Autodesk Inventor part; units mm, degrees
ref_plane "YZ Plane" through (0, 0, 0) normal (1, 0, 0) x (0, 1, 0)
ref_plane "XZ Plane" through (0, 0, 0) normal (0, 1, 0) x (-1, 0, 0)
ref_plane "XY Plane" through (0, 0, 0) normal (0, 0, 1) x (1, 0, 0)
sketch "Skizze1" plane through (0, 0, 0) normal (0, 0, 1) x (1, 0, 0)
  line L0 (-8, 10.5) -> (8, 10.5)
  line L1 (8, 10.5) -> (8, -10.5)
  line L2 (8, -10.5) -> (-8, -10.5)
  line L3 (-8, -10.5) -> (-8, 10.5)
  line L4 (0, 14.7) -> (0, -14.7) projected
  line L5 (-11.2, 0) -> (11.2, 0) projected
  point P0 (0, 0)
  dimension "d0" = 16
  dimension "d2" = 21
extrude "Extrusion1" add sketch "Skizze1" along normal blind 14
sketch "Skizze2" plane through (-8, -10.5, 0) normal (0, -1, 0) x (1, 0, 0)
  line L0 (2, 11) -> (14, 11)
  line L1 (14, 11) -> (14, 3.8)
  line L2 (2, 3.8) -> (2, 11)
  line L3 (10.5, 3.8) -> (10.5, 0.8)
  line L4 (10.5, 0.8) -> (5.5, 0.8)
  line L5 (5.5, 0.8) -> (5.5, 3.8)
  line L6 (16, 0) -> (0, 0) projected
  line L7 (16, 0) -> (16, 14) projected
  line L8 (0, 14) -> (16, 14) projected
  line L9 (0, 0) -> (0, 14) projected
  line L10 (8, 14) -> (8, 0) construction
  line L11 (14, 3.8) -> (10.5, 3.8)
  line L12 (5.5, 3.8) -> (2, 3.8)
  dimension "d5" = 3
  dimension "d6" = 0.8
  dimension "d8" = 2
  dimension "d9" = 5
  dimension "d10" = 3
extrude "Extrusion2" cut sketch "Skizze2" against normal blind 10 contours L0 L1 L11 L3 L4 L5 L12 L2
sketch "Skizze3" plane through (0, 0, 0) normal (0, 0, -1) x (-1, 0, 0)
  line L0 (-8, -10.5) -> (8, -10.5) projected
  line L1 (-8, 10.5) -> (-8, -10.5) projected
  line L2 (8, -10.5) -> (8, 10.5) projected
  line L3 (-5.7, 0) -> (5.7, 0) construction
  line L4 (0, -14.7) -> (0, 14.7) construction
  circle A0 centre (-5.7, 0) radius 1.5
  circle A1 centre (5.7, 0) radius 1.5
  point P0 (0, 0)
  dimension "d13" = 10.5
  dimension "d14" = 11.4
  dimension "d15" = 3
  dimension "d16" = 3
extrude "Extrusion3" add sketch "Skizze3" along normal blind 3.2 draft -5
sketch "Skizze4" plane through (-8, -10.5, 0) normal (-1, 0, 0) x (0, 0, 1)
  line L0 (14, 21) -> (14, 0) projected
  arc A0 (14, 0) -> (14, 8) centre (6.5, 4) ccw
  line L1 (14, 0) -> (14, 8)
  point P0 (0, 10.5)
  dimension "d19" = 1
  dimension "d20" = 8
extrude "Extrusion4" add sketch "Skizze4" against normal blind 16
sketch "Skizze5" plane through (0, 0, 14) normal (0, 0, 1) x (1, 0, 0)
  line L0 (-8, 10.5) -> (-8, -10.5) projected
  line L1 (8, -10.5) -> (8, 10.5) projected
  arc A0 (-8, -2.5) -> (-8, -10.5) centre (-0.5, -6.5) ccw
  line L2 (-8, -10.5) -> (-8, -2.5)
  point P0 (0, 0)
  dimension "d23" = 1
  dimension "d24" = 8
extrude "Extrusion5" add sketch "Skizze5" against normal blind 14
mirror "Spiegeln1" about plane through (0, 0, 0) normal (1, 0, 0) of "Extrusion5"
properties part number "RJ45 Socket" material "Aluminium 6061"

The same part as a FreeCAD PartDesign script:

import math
import FreeCAD as App
import Part
import Sketcher
Q = App.Units.Quantity


def add_polygon(sketch, points):
    """Adds a closed chain of lines whose ends are joined by coincident constraints."""
    first, n = sketch.GeometryCount, len(points)
    for a, b in zip(points, points[1:] + points[:1]):
        sketch.addGeometry(Part.LineSegment(App.Vector(*a, 0), App.Vector(*b, 0)), False)
    for i in range(n):
        sketch.addConstraint(Sketcher.Constraint("Coincident", first + i, 2, first + (i + 1) % n, 1))

doc = App.newDocument("Part")
body = doc.addObject("PartDesign::Body", "Body")

sketch1 = doc.addObject("Sketcher::SketchObject", "Sketch")
body.addObject(sketch1)
sketch1.AttachmentSupport = (doc.XY_Plane, [""])
sketch1.MapMode = "FlatFace"
add_polygon(sketch1, [(-8, 10.5), (-8, -10.5), (8, -10.5), (8, 10.5)])
sketch1.addConstraint([
    Sketcher.Constraint("Vertical", 0),
    Sketcher.Constraint("Horizontal", 1),
    Sketcher.Constraint("Vertical", 2),
    Sketcher.Constraint("Horizontal", 3),
    Sketcher.Constraint("Symmetric", 0, 2, 2, 2, -1, 1),
    Sketcher.Constraint("DistanceX", 1, 1, 1, 2, Q("16 mm")),
    Sketcher.Constraint("DistanceY", 0, 2, 0, 1, Q("21 mm")),
])
pad1 = doc.addObject("PartDesign::Pad", "Pad")
body.addObject(pad1)
pad1.Profile = sketch1
pad1.Length = 14

sketch2 = doc.addObject("Sketcher::SketchObject", "Sketch001")
body.addObject(sketch2)
sketch2.AttachmentSupport = (doc.XZ_Plane, [""])
sketch2.MapMode = "FlatFace"
sketch2.AttachmentOffset = App.Placement(App.Vector(0, 0, 10.5), App.Rotation())
add_polygon(sketch2, [(6, 11), (-6, 11), (-6, 3.8), (-2.5, 3.8), (-2.5, 0.8), (2.5, 0.8), (2.5, 3.8), (6, 3.8)])
sketch2.addConstraint([
    Sketcher.Constraint("Horizontal", 0),
    Sketcher.Constraint("Vertical", 1),
    Sketcher.Constraint("Horizontal", 2),
    Sketcher.Constraint("Vertical", 3),
    Sketcher.Constraint("Horizontal", 4),
    Sketcher.Constraint("Vertical", 5),
    Sketcher.Constraint("Horizontal", 6),
    Sketcher.Constraint("Vertical", 7),
    Sketcher.Constraint("Symmetric", 2, 2, 5, 2, -2),
    Sketcher.Constraint("Equal", 2, 6),
    Sketcher.Constraint("DistanceX", 4, 1, 4, 2, Q("5 mm")),
    Sketcher.Constraint("DistanceY", 3, 2, 3, 1, Q("3 mm")),
    Sketcher.Constraint("DistanceY", -1, 1, 3, 2, Q("0.8 mm")),
    Sketcher.Constraint("DistanceX", 0, 2, 0, 1, Q("12 mm")),
    Sketcher.Constraint("DistanceY", 1, 2, 1, 1, Q("7.2 mm")),
])
pocket1 = doc.addObject("PartDesign::Pocket", "Pocket")
body.addObject(pocket1)
pocket1.Profile = sketch2
pocket1.Length = 10

sketch3 = doc.addObject("Sketcher::SketchObject", "Sketch002")
body.addObject(sketch3)
sketch3.AttachmentSupport = (doc.XY_Plane, [""])
sketch3.MapMode = "FlatFace"
sketch3.addGeometry([
    Part.Circle(App.Vector(5.7, 0, 0), App.Vector(0, 0, 1), 1.5),
    Part.Circle(App.Vector(-5.7, 0, 0), App.Vector(0, 0, 1), 1.5),
], False)
sketch3.addConstraint([
    Sketcher.Constraint("Equal", 0, 1),
    Sketcher.Constraint("Symmetric", 0, 3, 1, 3, -1, 1),
    Sketcher.Constraint("PointOnObject", 0, 3, -1),
    Sketcher.Constraint("Diameter", 0, Q("3 mm")),
    Sketcher.Constraint("DistanceX", 1, 3, 0, 3, Q("11.4 mm")),
])
pad2 = doc.addObject("PartDesign::Pad", "Pad001")
body.addObject(pad2)
pad2.Profile = sketch3
pad2.Length = 3.2
pad2.Reversed = True
pad2.TaperAngle = -5

sketch4 = doc.addObject("Sketcher::SketchObject", "Sketch003")
body.addObject(sketch4)
sketch4.AttachmentSupport = (doc.YZ_Plane, [""])
sketch4.MapMode = "FlatFace"
sketch4.AttachmentOffset = App.Placement(App.Vector(0, 0, -8), App.Rotation())
sketch4.addGeometry([
    Part.ArcOfCircle(Part.Circle(App.Vector(-6.5, 6.5, 0), App.Vector(0, 0, 1), 8.5), math.radians(61.927513), math.radians(118.072487)),
    Part.LineSegment(App.Vector(-2.5, 14, 0), App.Vector(-10.5, 14, 0)),
], False)
sketch4.addConstraint([
    Sketcher.Constraint("Coincident", 0, 1, 1, 1),
    Sketcher.Constraint("Coincident", 1, 2, 0, 2),
    Sketcher.Constraint("Horizontal", 1),
    Sketcher.Constraint("DistanceX", 1, 2, 1, 1, Q("8 mm")),
    Sketcher.Constraint("Radius", 0, Q("8.5 mm")),
    Sketcher.Constraint("DistanceY", -1, 1, 0, 1, Q("14 mm")),
    Sketcher.Constraint("DistanceX", 0, 3, -1, 1, Q("6.5 mm")),
])
pad3 = doc.addObject("PartDesign::Pad", "Pad002")
body.addObject(pad3)
pad3.Profile = sketch4
pad3.Length = 16

sketch5 = doc.addObject("Sketcher::SketchObject", "Sketch004")
body.addObject(sketch5)
sketch5.AttachmentSupport = (doc.XY_Plane, [""])
sketch5.MapMode = "FlatFace"
sketch5.AttachmentOffset = App.Placement(App.Vector(0, 0, 14), App.Rotation())
sketch5.addGeometry([
    Part.LineSegment(App.Vector(-8, -10.5, 0), App.Vector(-8, -2.5, 0)),
    Part.ArcOfCircle(Part.Circle(App.Vector(-0.5, -6.5, 0), App.Vector(0, 0, 1), 8.5), math.radians(151.927513), math.radians(208.072487)),
], False)
sketch5.addConstraint([
    Sketcher.Constraint("Coincident", 0, 1, 1, 2),
    Sketcher.Constraint("Coincident", 1, 1, 0, 2),
    Sketcher.Constraint("Vertical", 0),
    Sketcher.Constraint("DistanceY", 0, 1, 0, 2, Q("8 mm")),
    Sketcher.Constraint("DistanceX", 0, 1, -1, 1, Q("8 mm")),
    Sketcher.Constraint("Radius", 1, Q("8.5 mm")),
    Sketcher.Constraint("DistanceY", 1, 3, -1, 1, Q("6.5 mm")),
])
pad4 = doc.addObject("PartDesign::Pad", "Pad003")
body.addObject(pad4)
pad4.Profile = sketch5
pad4.Length = 14
pad4.Reversed = True
doc.recompute()

mirrored = doc.addObject("PartDesign::Mirrored", "Mirrored")
body.addObject(mirrored)
mirrored.Originals = [pad4]
mirrored.MirrorPlane = (doc.YZ_Plane, [""])
body.Tip = mirrored

doc.recompute()
